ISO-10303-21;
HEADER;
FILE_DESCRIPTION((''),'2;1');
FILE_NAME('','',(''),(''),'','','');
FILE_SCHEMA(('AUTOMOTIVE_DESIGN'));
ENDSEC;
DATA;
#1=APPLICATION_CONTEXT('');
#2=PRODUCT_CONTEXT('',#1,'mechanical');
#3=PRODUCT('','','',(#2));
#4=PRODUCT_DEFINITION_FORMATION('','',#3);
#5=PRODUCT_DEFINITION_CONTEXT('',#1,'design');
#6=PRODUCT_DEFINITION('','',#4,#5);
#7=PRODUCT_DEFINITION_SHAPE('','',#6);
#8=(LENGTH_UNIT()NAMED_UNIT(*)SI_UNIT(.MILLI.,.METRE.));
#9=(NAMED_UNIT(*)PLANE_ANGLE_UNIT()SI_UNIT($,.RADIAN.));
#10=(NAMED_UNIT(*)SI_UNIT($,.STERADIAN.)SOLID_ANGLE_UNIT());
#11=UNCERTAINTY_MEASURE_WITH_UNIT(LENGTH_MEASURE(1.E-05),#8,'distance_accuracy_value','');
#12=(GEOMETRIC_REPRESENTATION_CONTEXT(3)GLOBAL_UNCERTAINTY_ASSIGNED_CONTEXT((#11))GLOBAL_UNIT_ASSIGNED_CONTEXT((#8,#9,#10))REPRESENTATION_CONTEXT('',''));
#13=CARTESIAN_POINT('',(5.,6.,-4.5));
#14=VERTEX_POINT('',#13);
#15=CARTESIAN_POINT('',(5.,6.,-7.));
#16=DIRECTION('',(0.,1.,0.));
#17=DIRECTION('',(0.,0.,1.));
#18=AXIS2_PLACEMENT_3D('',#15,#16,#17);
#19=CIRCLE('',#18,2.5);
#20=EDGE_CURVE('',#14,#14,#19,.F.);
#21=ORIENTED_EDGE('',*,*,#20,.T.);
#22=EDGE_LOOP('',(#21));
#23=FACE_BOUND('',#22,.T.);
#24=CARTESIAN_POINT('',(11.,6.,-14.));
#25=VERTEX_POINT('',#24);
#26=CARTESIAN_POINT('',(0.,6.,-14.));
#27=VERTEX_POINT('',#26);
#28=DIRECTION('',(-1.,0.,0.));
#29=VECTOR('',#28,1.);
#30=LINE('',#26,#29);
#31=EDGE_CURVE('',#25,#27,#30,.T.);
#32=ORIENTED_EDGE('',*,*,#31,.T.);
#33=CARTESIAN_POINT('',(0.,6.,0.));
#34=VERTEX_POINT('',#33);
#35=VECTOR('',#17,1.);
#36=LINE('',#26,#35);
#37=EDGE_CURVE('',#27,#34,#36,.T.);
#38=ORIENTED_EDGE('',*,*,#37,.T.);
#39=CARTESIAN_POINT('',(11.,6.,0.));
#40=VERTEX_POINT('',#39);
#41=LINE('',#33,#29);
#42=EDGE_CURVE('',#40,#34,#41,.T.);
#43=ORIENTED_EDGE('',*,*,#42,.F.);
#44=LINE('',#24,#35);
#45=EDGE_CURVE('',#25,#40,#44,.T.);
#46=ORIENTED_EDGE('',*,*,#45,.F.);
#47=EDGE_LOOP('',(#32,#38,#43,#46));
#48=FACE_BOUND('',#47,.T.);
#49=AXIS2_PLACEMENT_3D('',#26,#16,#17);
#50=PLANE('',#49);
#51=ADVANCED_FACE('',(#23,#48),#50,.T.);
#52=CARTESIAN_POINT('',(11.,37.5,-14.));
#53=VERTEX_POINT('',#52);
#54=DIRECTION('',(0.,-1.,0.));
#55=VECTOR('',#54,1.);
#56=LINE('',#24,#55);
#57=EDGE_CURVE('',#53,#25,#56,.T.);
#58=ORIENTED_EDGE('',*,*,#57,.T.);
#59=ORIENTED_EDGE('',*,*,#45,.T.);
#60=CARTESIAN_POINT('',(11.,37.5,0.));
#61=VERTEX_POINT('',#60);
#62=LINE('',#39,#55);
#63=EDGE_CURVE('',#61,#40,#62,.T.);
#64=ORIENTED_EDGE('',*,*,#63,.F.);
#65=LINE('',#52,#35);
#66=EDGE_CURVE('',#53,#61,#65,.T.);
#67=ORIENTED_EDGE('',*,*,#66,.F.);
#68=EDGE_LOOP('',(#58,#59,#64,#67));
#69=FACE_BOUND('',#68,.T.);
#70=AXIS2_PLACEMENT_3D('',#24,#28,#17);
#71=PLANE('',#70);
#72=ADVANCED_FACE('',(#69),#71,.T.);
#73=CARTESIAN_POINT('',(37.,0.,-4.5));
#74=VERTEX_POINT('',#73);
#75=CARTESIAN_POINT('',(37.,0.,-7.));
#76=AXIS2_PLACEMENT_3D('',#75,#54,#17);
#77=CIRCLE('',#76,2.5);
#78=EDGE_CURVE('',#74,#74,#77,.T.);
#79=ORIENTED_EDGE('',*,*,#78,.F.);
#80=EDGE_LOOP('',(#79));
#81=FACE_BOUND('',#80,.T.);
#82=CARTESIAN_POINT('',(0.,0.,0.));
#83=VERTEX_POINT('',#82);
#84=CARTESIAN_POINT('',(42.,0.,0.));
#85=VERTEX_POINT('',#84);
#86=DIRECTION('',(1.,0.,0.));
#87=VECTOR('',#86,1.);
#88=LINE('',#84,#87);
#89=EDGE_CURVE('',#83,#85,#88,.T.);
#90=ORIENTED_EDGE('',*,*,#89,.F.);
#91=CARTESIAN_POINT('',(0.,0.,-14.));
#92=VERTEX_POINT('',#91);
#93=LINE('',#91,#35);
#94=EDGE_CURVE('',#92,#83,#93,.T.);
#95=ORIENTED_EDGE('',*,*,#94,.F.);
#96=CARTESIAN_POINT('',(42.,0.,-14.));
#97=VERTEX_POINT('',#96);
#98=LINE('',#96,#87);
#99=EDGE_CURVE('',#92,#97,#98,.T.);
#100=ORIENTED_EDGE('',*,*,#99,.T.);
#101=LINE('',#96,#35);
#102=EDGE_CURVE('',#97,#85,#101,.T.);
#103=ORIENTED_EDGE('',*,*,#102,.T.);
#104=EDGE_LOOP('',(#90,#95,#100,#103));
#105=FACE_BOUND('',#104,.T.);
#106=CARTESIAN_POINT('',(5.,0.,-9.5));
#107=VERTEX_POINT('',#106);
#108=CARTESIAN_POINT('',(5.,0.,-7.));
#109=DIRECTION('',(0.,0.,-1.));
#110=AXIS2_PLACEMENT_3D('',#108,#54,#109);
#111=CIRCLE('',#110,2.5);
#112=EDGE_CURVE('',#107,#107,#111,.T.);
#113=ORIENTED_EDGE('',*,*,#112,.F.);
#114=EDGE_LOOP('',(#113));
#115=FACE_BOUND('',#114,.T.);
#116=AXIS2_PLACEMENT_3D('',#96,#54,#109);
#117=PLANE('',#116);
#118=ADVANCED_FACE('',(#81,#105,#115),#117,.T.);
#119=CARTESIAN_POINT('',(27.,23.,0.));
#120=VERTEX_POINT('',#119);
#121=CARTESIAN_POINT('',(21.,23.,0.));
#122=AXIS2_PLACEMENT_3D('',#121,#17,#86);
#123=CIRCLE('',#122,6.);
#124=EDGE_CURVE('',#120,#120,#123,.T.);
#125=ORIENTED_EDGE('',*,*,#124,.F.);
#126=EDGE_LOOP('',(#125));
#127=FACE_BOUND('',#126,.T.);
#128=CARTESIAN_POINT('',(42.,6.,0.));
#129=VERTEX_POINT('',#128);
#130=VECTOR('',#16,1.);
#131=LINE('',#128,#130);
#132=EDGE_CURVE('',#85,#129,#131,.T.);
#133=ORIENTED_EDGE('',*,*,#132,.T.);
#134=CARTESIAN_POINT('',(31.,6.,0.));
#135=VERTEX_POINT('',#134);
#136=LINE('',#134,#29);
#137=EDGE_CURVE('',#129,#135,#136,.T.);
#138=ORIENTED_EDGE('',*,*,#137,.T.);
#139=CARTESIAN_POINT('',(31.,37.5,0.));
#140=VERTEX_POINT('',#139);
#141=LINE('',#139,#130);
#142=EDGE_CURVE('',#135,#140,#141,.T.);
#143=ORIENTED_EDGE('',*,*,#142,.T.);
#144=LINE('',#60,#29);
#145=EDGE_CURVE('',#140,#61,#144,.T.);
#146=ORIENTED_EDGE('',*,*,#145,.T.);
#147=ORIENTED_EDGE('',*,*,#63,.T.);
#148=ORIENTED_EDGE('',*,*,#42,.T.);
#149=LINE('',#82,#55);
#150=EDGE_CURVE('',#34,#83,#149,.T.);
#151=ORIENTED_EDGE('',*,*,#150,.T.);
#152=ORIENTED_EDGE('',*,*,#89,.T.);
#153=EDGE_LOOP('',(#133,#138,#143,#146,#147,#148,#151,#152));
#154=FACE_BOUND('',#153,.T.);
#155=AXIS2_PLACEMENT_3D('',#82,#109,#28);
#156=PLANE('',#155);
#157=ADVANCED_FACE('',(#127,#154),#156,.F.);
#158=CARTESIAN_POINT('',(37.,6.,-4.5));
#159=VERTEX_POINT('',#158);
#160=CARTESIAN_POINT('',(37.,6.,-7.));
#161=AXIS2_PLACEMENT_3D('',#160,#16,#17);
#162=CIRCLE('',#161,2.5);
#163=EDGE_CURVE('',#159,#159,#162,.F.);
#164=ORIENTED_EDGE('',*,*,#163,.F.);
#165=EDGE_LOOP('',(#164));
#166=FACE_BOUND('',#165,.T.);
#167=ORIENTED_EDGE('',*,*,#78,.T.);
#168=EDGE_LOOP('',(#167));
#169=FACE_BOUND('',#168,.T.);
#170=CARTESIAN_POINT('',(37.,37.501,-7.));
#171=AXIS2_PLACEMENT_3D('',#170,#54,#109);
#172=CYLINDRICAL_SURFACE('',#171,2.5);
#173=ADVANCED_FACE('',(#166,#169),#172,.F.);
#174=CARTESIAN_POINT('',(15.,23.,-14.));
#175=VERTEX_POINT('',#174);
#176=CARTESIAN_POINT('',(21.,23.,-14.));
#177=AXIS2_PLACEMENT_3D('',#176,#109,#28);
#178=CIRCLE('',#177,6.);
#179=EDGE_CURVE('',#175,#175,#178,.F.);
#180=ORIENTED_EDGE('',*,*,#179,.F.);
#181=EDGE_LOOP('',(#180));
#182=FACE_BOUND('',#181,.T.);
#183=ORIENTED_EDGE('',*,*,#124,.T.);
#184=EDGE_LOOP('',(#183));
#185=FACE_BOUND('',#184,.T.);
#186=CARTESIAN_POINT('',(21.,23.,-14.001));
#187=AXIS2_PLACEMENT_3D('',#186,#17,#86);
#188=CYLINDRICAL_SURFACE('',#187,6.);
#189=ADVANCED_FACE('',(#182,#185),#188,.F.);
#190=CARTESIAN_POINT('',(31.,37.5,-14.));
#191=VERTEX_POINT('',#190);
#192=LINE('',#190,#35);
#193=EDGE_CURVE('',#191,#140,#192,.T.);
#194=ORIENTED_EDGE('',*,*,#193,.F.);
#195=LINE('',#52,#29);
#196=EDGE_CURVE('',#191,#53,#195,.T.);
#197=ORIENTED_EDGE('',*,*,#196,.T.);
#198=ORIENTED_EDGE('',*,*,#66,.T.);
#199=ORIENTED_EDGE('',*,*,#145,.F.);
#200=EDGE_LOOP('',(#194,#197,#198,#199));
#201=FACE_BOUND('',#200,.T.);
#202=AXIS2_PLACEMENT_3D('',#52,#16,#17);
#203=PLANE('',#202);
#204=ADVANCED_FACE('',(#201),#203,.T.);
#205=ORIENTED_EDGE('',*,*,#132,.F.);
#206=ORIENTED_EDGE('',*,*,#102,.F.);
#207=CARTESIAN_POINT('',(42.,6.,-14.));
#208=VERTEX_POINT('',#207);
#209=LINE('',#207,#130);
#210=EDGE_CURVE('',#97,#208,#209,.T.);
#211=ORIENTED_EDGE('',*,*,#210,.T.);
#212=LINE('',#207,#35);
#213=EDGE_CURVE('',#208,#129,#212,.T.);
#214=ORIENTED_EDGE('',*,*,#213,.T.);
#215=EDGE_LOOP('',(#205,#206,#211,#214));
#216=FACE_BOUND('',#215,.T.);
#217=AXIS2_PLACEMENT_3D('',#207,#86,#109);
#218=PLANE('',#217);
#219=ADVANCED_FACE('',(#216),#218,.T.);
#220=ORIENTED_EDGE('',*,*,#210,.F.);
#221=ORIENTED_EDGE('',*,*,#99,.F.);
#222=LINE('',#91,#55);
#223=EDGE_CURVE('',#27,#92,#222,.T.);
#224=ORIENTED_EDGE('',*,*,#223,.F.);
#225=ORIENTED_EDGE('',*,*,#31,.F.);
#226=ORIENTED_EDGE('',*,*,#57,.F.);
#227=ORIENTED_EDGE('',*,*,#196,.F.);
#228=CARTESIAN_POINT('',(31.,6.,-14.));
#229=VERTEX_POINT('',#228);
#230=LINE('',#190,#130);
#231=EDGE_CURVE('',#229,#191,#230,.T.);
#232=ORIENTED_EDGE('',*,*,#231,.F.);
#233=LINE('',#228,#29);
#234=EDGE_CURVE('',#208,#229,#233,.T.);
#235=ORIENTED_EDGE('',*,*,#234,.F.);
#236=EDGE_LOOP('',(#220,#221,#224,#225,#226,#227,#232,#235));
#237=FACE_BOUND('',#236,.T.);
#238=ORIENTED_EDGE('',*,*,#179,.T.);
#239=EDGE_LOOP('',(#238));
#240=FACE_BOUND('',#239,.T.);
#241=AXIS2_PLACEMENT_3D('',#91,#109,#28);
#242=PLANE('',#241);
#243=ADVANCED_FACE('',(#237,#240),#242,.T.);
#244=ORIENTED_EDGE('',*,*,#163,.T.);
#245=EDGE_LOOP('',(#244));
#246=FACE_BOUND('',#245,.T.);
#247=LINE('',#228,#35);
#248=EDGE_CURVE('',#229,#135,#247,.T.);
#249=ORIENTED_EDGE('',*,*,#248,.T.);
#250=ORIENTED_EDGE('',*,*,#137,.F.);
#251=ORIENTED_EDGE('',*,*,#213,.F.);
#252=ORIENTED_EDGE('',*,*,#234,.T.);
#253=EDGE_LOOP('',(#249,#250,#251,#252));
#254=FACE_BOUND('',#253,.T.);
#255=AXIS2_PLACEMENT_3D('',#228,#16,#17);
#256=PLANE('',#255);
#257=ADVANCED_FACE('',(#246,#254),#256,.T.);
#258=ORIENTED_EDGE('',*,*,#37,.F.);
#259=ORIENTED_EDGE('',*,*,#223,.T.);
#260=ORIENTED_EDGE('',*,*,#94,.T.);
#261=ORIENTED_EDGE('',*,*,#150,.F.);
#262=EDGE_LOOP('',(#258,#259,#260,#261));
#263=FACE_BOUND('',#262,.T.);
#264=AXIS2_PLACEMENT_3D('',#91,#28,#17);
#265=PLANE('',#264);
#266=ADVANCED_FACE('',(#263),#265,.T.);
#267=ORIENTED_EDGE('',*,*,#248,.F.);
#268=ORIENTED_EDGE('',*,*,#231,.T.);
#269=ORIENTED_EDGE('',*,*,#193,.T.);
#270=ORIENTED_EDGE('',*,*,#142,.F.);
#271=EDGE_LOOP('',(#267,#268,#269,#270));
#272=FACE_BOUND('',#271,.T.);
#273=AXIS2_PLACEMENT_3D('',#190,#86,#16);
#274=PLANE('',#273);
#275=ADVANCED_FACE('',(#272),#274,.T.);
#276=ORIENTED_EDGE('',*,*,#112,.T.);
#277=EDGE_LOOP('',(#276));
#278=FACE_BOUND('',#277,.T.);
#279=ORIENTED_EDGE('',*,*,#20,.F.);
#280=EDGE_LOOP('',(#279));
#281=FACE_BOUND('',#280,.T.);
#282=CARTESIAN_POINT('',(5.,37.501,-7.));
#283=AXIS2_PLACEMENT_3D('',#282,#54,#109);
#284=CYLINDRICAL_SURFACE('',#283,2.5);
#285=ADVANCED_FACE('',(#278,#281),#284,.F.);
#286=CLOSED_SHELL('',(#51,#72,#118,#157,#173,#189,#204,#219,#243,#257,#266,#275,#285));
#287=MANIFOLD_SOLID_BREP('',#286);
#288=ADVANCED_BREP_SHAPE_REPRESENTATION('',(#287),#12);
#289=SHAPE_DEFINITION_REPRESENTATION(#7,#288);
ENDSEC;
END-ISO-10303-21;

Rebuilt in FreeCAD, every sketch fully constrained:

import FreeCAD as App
import Part
import Sketcher

doc = App.newDocument("Part")
params = doc.addObject("Spreadsheet::Sheet", "Params")
for row, (alias, value) in enumerate([
    ("sketch1_width", "42 mm"),
    ("sketch1_width2", "11 mm"),
    ("sketch1_height", "6 mm"),
    ("sketch1_height2", "31.5 mm"),
    ("pad1_length", "14 mm"),
    ("sketch2_diameter", "5 mm"),
    ("sketch3_diameter", "5 mm"),
    ("sketch4_diameter", "12 mm"),
], start=1):
    params.set(f"A{row}", alias)
    params.set(f"B{row}", "=" + value)
    params.setAlias(f"B{row}", alias)

body = doc.addObject("PartDesign::Body", "Body")

# Sketch on XY plane
sketch1 = body.newObject("Sketcher::SketchObject", "Sketch")
sketch1.AttachmentSupport = (doc.getObject("XY_Plane"), [""])
sketch1.MapMode = "FlatFace"
sketch1.addGeometry([
    Part.LineSegment(App.Vector(0, 6, 0), App.Vector(0, 0, 0)),  # 0
    Part.LineSegment(App.Vector(0, 0, 0), App.Vector(42, 0, 0)),  # 1
    Part.LineSegment(App.Vector(42, 0, 0), App.Vector(42, 6, 0)),  # 2
    Part.LineSegment(App.Vector(42, 6, 0), App.Vector(31, 6, 0)),  # 3
    Part.LineSegment(App.Vector(31, 6, 0), App.Vector(31, 38, 0)),  # 4
    Part.LineSegment(App.Vector(31, 38, 0), App.Vector(11, 38, 0)),  # 5
    Part.LineSegment(App.Vector(11, 38, 0), App.Vector(11, 6, 0)),  # 6
    Part.LineSegment(App.Vector(11, 6, 0), App.Vector(0, 6, 0)),  # 7
], False)
sketch1.addConstraint([
    Sketcher.Constraint("Coincident", 0, 2, 1, 1),
    Sketcher.Constraint("Coincident", 1, 2, 2, 1),
    Sketcher.Constraint("Coincident", 2, 2, 3, 1),
    Sketcher.Constraint("Coincident", 3, 2, 4, 1),
    Sketcher.Constraint("Coincident", 4, 2, 5, 1),
    Sketcher.Constraint("Coincident", 5, 2, 6, 1),
    Sketcher.Constraint("Coincident", 6, 2, 7, 1),
    Sketcher.Constraint("Coincident", 7, 2, 0, 1),
    Sketcher.Constraint("Vertical", 0),
    Sketcher.Constraint("Horizontal", 1),
    Sketcher.Constraint("Vertical", 2),
    Sketcher.Constraint("Horizontal", 3),
    Sketcher.Constraint("Vertical", 4),
    Sketcher.Constraint("Horizontal", 5),
    Sketcher.Constraint("Vertical", 6),
    Sketcher.Constraint("Horizontal", 7),
    Sketcher.Constraint("Coincident", 0, 2, -1, 1),
    Sketcher.Constraint("Horizontal", 3, 2, 6, 2),
    Sketcher.Constraint("Equal", 3, 7),
    Sketcher.Constraint("DistanceX", 1, 1, 1, 2, 42.0),
    Sketcher.Constraint("DistanceX", 3, 2, 3, 1, 11.0),
    Sketcher.Constraint("DistanceY", 0, 2, 0, 1, 6.0),
    Sketcher.Constraint("DistanceY", 4, 1, 4, 2, 31.5),
])
sketch1.setExpression("Constraints[19]", "Params.sketch1_width")
sketch1.setExpression("Constraints[20]", "Params.sketch1_width2")
sketch1.setExpression("Constraints[21]", "Params.sketch1_height")
sketch1.setExpression("Constraints[22]", "Params.sketch1_height2")
pad1 = body.newObject("PartDesign::Pad", "Pad")
pad1.Profile = sketch1
pad1.setExpression("Length", "Params.pad1_length")
pad1.Reversed = True

# Sketch on XZ plane
sketch2 = body.newObject("Sketcher::SketchObject", "Sketch001")
sketch2.AttachmentSupport = (doc.getObject("XZ_Plane"), [""])
sketch2.MapMode = "FlatFace"
sketch2.addGeometry(Part.Circle(App.Vector(5, -7, 0), App.Vector(0, 0, 1), 2.5), False)
sketch2.addConstraint([
    Sketcher.Constraint("Diameter", 0, 5.0),
    Sketcher.Constraint("DistanceX", -1, 1, 0, 3, 5.0),
    Sketcher.Constraint("DistanceY", 0, 3, -1, 1, 7.0),
])
sketch2.setExpression("Constraints[0]", "Params.sketch2_diameter")
pocket1 = body.newObject("PartDesign::Pocket", "Pocket")
pocket1.Profile = sketch2
pocket1.Type = "UpToFirst"

# Sketch on XZ plane
sketch3 = body.newObject("Sketcher::SketchObject", "Sketch002")
sketch3.AttachmentSupport = (doc.getObject("XZ_Plane"), [""])
sketch3.MapMode = "FlatFace"
sketch3.addGeometry(Part.Circle(App.Vector(37, -7, 0), App.Vector(0, 0, 1), 2.5), False)
sketch3.addConstraint([
    Sketcher.Constraint("Diameter", 0, 5.0),
    Sketcher.Constraint("DistanceX", -1, 1, 0, 3, 37.0),
    Sketcher.Constraint("DistanceY", 0, 3, -1, 1, 7.0),
])
sketch3.setExpression("Constraints[0]", "Params.sketch3_diameter")
pocket2 = body.newObject("PartDesign::Pocket", "Pocket001")
pocket2.Profile = sketch3
pocket2.Type = "UpToFirst"

# Sketch on XY plane
sketch4 = body.newObject("Sketcher::SketchObject", "Sketch003")
sketch4.AttachmentSupport = (doc.getObject("XY_Plane"), [""])
sketch4.MapMode = "FlatFace"
sketch4.addGeometry(Part.Circle(App.Vector(21, 23, 0), App.Vector(0, 0, 1), 6), False)
sketch4.addConstraint([
    Sketcher.Constraint("Diameter", 0, 12.0),
    Sketcher.Constraint("DistanceX", -1, 1, 0, 3, 21.0),
    Sketcher.Constraint("DistanceY", -1, 1, 0, 3, 23.0),
])
sketch4.setExpression("Constraints[0]", "Params.sketch4_diameter")
pocket3 = body.newObject("PartDesign::Pocket", "Pocket002")
pocket3.Profile = sketch4
pocket3.Type = "UpToFirst"

doc.recompute()
